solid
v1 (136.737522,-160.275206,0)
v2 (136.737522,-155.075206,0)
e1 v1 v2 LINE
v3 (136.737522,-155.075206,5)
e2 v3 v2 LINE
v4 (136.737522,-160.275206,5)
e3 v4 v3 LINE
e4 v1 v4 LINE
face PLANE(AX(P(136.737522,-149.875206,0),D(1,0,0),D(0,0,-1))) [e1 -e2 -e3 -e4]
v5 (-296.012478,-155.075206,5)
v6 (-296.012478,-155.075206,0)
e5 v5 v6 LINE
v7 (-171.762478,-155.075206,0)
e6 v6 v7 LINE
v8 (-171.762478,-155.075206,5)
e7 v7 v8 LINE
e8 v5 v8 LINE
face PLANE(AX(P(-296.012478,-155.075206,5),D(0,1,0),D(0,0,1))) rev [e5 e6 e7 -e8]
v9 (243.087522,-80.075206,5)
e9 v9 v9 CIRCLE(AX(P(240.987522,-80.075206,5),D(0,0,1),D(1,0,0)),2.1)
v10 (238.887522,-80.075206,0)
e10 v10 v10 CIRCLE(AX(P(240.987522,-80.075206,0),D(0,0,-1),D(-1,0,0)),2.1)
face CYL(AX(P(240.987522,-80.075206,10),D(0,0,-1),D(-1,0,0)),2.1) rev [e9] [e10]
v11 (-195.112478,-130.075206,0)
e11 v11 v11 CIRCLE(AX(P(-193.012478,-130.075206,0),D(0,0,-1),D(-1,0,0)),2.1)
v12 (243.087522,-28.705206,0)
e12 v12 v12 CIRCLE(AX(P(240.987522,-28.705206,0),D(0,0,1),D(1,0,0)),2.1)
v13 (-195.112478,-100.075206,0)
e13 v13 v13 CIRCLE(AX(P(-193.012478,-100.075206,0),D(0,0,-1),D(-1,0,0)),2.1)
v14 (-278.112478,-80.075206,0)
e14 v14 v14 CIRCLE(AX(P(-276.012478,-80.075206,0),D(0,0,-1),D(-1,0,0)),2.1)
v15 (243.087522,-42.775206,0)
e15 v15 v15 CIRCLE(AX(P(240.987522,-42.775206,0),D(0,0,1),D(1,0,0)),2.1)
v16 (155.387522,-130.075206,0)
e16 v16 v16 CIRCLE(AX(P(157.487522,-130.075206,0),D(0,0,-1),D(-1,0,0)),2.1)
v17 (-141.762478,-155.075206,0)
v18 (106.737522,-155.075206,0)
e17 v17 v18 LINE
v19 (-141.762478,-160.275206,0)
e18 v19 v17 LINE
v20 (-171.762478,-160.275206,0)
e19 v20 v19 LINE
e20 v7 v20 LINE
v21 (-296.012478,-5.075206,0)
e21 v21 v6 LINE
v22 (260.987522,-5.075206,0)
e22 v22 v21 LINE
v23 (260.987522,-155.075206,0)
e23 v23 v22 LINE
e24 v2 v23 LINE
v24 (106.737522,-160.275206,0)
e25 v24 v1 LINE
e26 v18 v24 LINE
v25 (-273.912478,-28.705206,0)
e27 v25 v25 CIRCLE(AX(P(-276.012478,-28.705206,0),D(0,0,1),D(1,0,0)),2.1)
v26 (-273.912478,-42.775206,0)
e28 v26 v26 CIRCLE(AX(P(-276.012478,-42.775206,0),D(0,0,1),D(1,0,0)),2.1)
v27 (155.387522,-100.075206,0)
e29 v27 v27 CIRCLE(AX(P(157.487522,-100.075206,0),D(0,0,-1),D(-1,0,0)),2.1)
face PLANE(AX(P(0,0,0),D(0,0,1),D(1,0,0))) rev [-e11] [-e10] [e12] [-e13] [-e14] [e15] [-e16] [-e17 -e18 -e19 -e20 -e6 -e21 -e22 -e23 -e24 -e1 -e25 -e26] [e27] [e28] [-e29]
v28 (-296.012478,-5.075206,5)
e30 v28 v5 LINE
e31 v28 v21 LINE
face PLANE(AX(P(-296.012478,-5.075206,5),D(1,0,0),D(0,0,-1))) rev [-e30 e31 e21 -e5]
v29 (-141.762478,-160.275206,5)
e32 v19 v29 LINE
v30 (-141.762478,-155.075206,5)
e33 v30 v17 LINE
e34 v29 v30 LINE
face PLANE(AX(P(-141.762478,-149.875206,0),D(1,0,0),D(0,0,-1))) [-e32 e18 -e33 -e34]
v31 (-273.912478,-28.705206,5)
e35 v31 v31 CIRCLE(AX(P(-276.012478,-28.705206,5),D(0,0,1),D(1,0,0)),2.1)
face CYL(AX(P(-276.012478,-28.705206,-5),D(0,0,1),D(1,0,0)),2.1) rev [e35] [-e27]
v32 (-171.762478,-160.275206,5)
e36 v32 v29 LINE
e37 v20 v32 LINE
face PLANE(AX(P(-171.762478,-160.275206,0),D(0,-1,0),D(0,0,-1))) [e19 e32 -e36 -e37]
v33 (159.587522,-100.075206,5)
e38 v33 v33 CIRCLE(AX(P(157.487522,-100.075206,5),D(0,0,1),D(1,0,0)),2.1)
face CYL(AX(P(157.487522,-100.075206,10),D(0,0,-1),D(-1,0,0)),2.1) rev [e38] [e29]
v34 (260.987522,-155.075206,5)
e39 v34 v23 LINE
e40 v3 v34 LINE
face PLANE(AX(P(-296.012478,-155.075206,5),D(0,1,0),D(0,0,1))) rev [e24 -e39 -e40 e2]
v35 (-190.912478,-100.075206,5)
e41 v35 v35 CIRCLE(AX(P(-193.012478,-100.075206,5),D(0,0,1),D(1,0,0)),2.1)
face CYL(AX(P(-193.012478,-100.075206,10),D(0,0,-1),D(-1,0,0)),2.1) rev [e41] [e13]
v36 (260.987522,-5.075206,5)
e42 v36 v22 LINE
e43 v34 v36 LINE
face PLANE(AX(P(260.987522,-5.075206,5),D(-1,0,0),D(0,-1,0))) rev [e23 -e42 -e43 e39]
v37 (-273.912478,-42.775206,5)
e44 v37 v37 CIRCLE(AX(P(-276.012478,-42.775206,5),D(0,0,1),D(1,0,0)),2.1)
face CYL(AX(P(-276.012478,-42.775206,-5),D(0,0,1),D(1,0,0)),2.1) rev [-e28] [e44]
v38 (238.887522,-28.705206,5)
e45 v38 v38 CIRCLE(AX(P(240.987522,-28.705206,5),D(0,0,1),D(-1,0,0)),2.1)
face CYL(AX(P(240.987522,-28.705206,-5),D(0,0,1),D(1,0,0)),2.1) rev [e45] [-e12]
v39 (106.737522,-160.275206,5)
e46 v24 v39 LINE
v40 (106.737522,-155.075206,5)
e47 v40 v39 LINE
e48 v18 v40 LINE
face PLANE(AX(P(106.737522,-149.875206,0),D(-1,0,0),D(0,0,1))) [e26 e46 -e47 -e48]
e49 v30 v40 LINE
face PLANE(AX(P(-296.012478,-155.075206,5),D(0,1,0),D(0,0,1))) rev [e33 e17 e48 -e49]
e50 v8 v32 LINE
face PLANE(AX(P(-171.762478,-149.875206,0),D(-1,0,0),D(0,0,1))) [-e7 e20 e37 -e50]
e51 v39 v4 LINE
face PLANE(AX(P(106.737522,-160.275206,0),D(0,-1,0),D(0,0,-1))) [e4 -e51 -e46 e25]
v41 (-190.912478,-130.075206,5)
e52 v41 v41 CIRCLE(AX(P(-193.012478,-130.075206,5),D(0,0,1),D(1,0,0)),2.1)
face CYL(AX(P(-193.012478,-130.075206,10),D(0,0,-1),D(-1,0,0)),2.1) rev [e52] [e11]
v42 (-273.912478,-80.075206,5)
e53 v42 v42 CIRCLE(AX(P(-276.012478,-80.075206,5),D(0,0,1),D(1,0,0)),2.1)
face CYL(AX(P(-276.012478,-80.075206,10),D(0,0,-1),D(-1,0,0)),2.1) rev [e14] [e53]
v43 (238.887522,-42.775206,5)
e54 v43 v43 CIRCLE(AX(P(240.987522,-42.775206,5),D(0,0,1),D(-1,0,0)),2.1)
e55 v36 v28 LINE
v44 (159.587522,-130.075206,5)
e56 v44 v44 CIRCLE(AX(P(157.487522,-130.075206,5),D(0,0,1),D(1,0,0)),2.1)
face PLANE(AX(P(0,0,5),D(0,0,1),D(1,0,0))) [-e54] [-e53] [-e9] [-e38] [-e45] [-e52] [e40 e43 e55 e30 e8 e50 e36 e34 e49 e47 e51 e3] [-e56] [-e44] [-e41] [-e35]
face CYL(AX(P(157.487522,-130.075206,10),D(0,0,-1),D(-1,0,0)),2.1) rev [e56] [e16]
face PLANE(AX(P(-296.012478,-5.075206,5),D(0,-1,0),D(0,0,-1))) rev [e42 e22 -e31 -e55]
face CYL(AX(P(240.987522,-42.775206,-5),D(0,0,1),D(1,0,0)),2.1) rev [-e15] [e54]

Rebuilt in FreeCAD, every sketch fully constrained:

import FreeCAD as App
import Part
import Sketcher


def add_polygon(sketch, points):
    """Adds a closed chain of lines whose ends are joined by coincident constraints."""
    first, n = sketch.GeometryCount, len(points)
    for a, b in zip(points, points[1:] + points[:1]):
        sketch.addGeometry(Part.LineSegment(App.Vector(*a, 0), App.Vector(*b, 0)), False)
    for i in range(n):
        sketch.addConstraint(Sketcher.Constraint("Coincident", first + i, 2, first + (i + 1) % n, 1))

doc = App.newDocument("Part")
params = doc.addObject("Spreadsheet::Sheet", "Params")
for row, (alias, value) in enumerate([
    ("sketch1_width", "557 mm"),
    ("sketch1_height", "150 mm"),
    ("pad1_length", "5 mm"),
    ("sketch2_width", "30 mm"),
    ("sketch2_height", "10.4 mm"),
    ("pad2_length", "5 mm"),
    ("sketch3_diameter", "4.2 mm"),
    ("pocket1_length", "10 mm"),
    ("sketch4_diameter", "4.2 mm"),
    ("pocket2_length", "10 mm"),
    ("sketch5_diameter", "4.2 mm"),
    ("pocket3_length", "10 mm"),
    ("sketch6_diameter", "4.2 mm"),
    ("pocket4_length", "10 mm"),
], start=1):
    params.set(f"A{row}", alias)
    params.set(f"B{row}", "=" + value)
    params.setAlias(f"B{row}", alias)

body = doc.addObject("PartDesign::Body", "Body")

# Sketch on XY plane
sketch1 = body.newObject("Sketcher::SketchObject", "Sketch")
sketch1.AttachmentSupport = (doc.getObject("XY_Plane"), [""])
sketch1.MapMode = "FlatFace"
add_polygon(sketch1, [(-296, -5), (-296, -155), (261, -155), (261, -5)])  # lines 0-3
sketch1.addConstraint([
    Sketcher.Constraint("Vertical", 0),
    Sketcher.Constraint("Horizontal", 1),
    Sketcher.Constraint("Vertical", 2),
    Sketcher.Constraint("Horizontal", 3),
    Sketcher.Constraint("DistanceX", 1, 1, 1, 2, 557.0),
    Sketcher.Constraint("DistanceY", 0, 2, 0, 1, 150.0),
    Sketcher.Constraint("DistanceX", 0, 2, -1, 1, 296.012478),
    Sketcher.Constraint("DistanceY", 0, 2, -1, 1, 155.075206),
])
sketch1.setExpression("Constraints[8]", "Params.sketch1_width")
sketch1.setExpression("Constraints[9]", "Params.sketch1_height")
pad1 = body.newObject("PartDesign::Pad", "Pad")
pad1.Profile = sketch1
pad1.setExpression("Length", "Params.pad1_length")

# Sketch on XY plane
sketch2 = body.newObject("Sketcher::SketchObject", "Sketch001")
sketch2.AttachmentSupport = (doc.getObject("XY_Plane"), [""])
sketch2.MapMode = "FlatFace"
sketch2.AttachmentOffset = App.Placement(App.Vector(0, 0, 5), App.Rotation())
add_polygon(sketch2, [(-172, -150), (-172, -160), (-142, -160), (-142, -150)])  # lines 0-3
add_polygon(sketch2, [(107, -150), (107, -160), (137, -160), (137, -150)])  # lines 4-7
sketch2.addConstraint([
    Sketcher.Constraint("Vertical", 0),
    Sketcher.Constraint("Horizontal", 1),
    Sketcher.Constraint("Vertical", 2),
    Sketcher.Constraint("Horizontal", 3),
    Sketcher.Constraint("Vertical", 4),
    Sketcher.Constraint("Horizontal", 5),
    Sketcher.Constraint("Vertical", 6),
    Sketcher.Constraint("Horizontal", 7),
    Sketcher.Constraint("Horizontal", 1, 2, 4, 2),
    Sketcher.Constraint("Horizontal", 3, 2, 6, 2),
    Sketcher.Constraint("Equal", 3, 5),
    Sketcher.Constraint("DistanceX", 1, 1, 1, 2, 30.0),
    Sketcher.Constraint("DistanceY", 0, 2, 0, 1, 10.4),
    Sketcher.Constraint("DistanceX", 1, 2, 4, 2, 248.5),
    Sketcher.Constraint("DistanceX", 0, 2, -1, 1, 171.762478),
    Sketcher.Constraint("DistanceY", 0, 2, -1, 1, 160.275206),
])
sketch2.setExpression("Constraints[19]", "Params.sketch2_width")
sketch2.setExpression("Constraints[20]", "Params.sketch2_height")
pad2 = body.newObject("PartDesign::Pad", "Pad001")
pad2.Profile = sketch2
pad2.setExpression("Length", "Params.pad2_length")
pad2.Reversed = True

# Sketch on XY plane
sketch3 = body.newObject("Sketcher::SketchObject", "Sketch002")
sketch3.AttachmentSupport = (doc.getObject("XY_Plane"), [""])
sketch3.MapMode = "FlatFace"
sketch3.AttachmentOffset = App.Placement(App.Vector(0, 0, 5), App.Rotation())
sketch3.addGeometry([
    Part.Circle(App.Vector(-276, -28.7, 0), App.Vector(0, 0, 1), 2.1),
    Part.Circle(App.Vector(-276, -42.8, 0), App.Vector(0, 0, 1), 2.1),
    Part.Circle(App.Vector(241, -42.8, 0), App.Vector(0, 0, 1), 2.1),
    Part.Circle(App.Vector(241, -28.7, 0), App.Vector(0, 0, 1), 2.1),
], False)
sketch3.addConstraint([
    Sketcher.Constraint("Equal", 0, 1),
    Sketcher.Constraint("Equal", 1, 2),
    Sketcher.Constraint("Equal", 2, 3),
    Sketcher.Constraint("Horizontal", 1, 3, 2, 3),
    Sketcher.Constraint("Horizontal", 0, 3, 3, 3),
    Sketcher.Constraint("Vertical", 0, 3, 1, 3),
    Sketcher.Constraint("Vertical", 2, 3, 3, 3),
    Sketcher.Constraint("Diameter", 0, 4.2),
    Sketcher.Constraint("DistanceX", 1, 3, 2, 3, 517.0),
    Sketcher.Constraint("DistanceY", 1, 3, 0, 3, 14.07),
    Sketcher.Constraint("DistanceX", 0, 3, -1, 1, 276.012478),
    Sketcher.Constraint("DistanceY", 0, 3, -1, 1, 28.705206),
])
sketch3.setExpression("Constraints[7]", "Params.sketch3_diameter")
pocket1 = body.newObject("PartDesign::Pocket", "Pocket")
pocket1.Profile = sketch3
pocket1.setExpression("Length", "Params.pocket1_length")

# Sketch on XY plane
sketch4 = body.newObject("Sketcher::SketchObject", "Sketch003")
sketch4.AttachmentSupport = (doc.getObject("XY_Plane"), [""])
sketch4.MapMode = "FlatFace"
sketch4.addGeometry([
    Part.Circle(App.Vector(241, -80.1, 0), App.Vector(0, 0, 1), 2.1),
    Part.Circle(App.Vector(-276, -80.1, 0), App.Vector(0, 0, 1), 2.1),
], False)
sketch4.addConstraint([
    Sketcher.Constraint("Equal", 0, 1),
    Sketcher.Constraint("Horizontal", 0, 3, 1, 3),
    Sketcher.Constraint("Diameter", 0, 4.2),
    Sketcher.Constraint("DistanceX", 1, 3, 0, 3, 517.0),
    Sketcher.Constraint("DistanceX", -1, 1, 0, 3, 240.987522),
    Sketcher.Constraint("DistanceY", 0, 3, -1, 1, 80.075206),
])
sketch4.setExpression("Constraints[2]", "Params.sketch4_diameter")
pocket2 = body.newObject("PartDesign::Pocket", "Pocket001")
pocket2.Profile = sketch4
pocket2.setExpression("Length", "Params.pocket2_length")
pocket2.Reversed = True

# Sketch on XY plane
sketch5 = body.newObject("Sketcher::SketchObject", "Sketch004")
sketch5.AttachmentSupport = (doc.getObject("XY_Plane"), [""])
sketch5.MapMode = "FlatFace"
sketch5.addGeometry([
    Part.Circle(App.Vector(157.5, -130.1, 0), App.Vector(0, 0, 1), 2.1),
    Part.Circle(App.Vector(157.5, -100.1, 0), App.Vector(0, 0, 1), 2.1),
], False)
sketch5.addConstraint([
    Sketcher.Constraint("Equal", 0, 1),
    Sketcher.Constraint("Vertical", 0, 3, 1, 3),
    Sketcher.Constraint("Diameter", 0, 4.2),
    Sketcher.Constraint("DistanceY", 0, 3, 1, 3, 30.0),
    Sketcher.Constraint("DistanceX", -1, 1, 0, 3, 157.487522),
    Sketcher.Constraint("DistanceY", 0, 3, -1, 1, 130.075206),
])
sketch5.setExpression("Constraints[2]", "Params.sketch5_diameter")
pocket3 = body.newObject("PartDesign::Pocket", "Pocket002")
pocket3.Profile = sketch5
pocket3.setExpression("Length", "Params.pocket3_length")
pocket3.Reversed = True

# Sketch on XY plane
sketch6 = body.newObject("Sketcher::SketchObject", "Sketch005")
sketch6.AttachmentSupport = (doc.getObject("XY_Plane"), [""])
sketch6.MapMode = "FlatFace"
sketch6.addGeometry([
    Part.Circle(App.Vector(-193, -130.1, 0), App.Vector(0, 0, 1), 2.1),
    Part.Circle(App.Vector(-193, -100.1, 0), App.Vector(0, 0, 1), 2.1),
], False)
sketch6.addConstraint([
    Sketcher.Constraint("Equal", 0, 1),
    Sketcher.Constraint("Vertical", 0, 3, 1, 3),
    Sketcher.Constraint("Diameter", 0, 4.2),
    Sketcher.Constraint("DistanceY", 0, 3, 1, 3, 30.0),
    Sketcher.Constraint("DistanceX", 0, 3, -1, 1, 193.012478),
    Sketcher.Constraint("DistanceY", 0, 3, -1, 1, 130.075206),
])
sketch6.setExpression("Constraints[2]", "Params.sketch6_diameter")
pocket4 = body.newObject("PartDesign::Pocket", "Pocket003")
pocket4.Profile = sketch6
pocket4.setExpression("Length", "Params.pocket4_length")
pocket4.Reversed = True

doc.recompute()
